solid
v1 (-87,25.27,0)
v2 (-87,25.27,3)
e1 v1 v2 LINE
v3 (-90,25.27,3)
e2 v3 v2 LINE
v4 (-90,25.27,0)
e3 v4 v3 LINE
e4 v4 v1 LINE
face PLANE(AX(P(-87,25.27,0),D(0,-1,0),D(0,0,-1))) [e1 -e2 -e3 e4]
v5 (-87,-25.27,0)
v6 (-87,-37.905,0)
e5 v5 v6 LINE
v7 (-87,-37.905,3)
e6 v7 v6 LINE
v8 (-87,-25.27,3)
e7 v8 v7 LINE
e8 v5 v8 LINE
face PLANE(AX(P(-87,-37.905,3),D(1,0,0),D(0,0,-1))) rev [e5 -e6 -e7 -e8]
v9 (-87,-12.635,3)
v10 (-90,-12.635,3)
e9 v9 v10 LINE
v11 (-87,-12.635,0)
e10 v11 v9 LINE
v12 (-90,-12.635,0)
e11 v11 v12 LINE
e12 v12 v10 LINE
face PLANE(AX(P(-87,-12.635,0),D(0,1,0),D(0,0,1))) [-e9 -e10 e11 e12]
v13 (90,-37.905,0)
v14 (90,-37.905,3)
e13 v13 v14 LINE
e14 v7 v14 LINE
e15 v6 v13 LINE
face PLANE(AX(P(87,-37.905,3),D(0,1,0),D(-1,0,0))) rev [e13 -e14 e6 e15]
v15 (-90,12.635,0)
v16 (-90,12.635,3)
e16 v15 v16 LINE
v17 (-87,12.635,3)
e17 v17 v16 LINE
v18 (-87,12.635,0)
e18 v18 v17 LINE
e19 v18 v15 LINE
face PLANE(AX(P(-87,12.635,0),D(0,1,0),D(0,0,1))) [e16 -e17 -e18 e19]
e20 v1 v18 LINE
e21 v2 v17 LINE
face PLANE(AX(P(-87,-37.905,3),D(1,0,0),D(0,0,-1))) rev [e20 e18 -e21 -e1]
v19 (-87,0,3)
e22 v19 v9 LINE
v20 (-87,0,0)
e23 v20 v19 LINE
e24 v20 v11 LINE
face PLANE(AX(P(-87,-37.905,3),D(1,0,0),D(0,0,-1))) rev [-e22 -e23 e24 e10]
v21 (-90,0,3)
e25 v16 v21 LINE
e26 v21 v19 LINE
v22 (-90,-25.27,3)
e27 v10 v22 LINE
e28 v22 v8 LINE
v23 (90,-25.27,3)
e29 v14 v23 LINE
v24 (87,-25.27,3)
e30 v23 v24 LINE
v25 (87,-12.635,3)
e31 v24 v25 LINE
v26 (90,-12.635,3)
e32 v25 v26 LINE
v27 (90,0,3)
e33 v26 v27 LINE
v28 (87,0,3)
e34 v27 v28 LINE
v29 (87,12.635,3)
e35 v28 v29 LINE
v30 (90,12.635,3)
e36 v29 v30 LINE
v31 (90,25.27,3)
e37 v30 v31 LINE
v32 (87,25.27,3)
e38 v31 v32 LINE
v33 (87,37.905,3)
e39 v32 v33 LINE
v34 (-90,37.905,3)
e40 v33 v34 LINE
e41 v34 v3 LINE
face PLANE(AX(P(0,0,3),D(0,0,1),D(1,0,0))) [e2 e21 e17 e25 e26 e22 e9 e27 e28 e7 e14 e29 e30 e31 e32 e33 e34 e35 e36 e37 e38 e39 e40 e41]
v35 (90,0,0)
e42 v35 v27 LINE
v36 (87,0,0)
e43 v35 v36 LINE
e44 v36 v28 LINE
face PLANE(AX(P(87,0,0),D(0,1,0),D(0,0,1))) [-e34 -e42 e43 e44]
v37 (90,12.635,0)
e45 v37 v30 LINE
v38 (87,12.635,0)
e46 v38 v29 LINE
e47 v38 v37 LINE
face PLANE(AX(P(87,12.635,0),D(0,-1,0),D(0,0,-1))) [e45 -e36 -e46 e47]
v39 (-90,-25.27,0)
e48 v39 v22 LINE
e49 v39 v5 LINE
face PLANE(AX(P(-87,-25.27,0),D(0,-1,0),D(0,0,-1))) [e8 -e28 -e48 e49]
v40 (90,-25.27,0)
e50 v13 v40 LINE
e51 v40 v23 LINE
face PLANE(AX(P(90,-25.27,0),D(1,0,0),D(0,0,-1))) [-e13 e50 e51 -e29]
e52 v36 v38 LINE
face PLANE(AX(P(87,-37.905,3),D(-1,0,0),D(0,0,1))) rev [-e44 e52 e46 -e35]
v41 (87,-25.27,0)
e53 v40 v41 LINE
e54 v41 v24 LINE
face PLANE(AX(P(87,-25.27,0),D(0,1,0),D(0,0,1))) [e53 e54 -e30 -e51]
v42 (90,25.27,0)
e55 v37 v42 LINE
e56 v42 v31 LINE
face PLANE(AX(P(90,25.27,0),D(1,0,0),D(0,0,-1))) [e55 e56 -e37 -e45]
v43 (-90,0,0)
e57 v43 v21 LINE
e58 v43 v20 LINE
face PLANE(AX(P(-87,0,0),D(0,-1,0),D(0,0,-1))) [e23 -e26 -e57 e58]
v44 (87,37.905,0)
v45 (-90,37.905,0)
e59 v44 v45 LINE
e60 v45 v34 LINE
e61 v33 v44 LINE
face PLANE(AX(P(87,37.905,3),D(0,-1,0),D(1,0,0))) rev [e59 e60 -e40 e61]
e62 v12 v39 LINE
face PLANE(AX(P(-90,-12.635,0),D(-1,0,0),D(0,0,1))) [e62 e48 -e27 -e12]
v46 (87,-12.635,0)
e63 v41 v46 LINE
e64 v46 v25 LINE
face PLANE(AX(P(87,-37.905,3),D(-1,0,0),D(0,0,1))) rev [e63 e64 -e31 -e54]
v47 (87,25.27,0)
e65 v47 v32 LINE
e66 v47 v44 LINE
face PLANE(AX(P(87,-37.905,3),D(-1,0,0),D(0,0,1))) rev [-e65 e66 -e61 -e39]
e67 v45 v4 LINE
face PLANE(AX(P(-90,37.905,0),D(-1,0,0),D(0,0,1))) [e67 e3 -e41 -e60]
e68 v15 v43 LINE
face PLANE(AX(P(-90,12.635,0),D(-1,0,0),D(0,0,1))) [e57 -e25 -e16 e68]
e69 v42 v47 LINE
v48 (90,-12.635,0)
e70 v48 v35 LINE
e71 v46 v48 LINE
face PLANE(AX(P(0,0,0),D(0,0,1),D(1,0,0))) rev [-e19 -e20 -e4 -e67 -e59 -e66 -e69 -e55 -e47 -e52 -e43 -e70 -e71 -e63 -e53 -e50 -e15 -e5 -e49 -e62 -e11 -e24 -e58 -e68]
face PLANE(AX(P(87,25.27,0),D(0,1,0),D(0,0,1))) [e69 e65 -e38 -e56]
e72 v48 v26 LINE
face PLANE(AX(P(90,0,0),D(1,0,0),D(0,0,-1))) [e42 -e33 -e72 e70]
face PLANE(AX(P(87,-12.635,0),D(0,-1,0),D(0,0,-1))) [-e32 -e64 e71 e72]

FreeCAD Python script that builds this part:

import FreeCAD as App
import Part
import Sketcher

V = App.Vector
Q = App.Units.Quantity

doc = App.newDocument("Part")
body = doc.addObject("PartDesign::Body", "Body")

sketch1 = body.newObject("Sketcher::SketchObject", "Sketch")
sketch1.AttachmentSupport = (doc.getObject("XY_Plane"), [""])
sketch1.MapMode = "FlatFace"
sketch1.addGeometry([
    Part.LineSegment(V(-87, 38, 0), V(-87, -38, 0)),
    Part.LineSegment(V(-87, -38, 0), V(87, -38, 0)),
    Part.LineSegment(V(87, -38, 0), V(87, 38, 0)),
    Part.LineSegment(V(87, 38, 0), V(-87, 38, 0)),
], False)
sketch1.addConstraint([
    Sketcher.Constraint("Coincident", 0, 2, 1, 1),
    Sketcher.Constraint("Coincident", 1, 2, 2, 1),
    Sketcher.Constraint("Coincident", 2, 2, 3, 1),
    Sketcher.Constraint("Coincident", 3, 2, 0, 1),
    Sketcher.Constraint("Vertical", 0),
    Sketcher.Constraint("Horizontal", 1),
    Sketcher.Constraint("Vertical", 2),
    Sketcher.Constraint("Horizontal", 3),
    Sketcher.Constraint("Symmetric", 0, 2, 2, 2, -1, 1),
    Sketcher.Constraint("DistanceX", 1, 1, 1, 2, Q("174 mm")),
    Sketcher.Constraint("DistanceY", 0, 2, 0, 1, Q("75.81 mm")),
])
pad1 = body.newObject("PartDesign::Pad", "Pad")
pad1.Profile = sketch1
pad1.Length = 3

sketch2 = body.newObject("Sketcher::SketchObject", "Sketch001")
sketch2.AttachmentSupport = (doc.getObject("XY_Plane"), [""])
sketch2.MapMode = "FlatFace"
sketch2.AttachmentOffset = App.Placement(V(0, 0, 3), App.Rotation())
sketch2.addGeometry([
    Part.LineSegment(V(-90, 12.6, 0), V(-90, 0, 0)),
    Part.LineSegment(V(-90, 0, 0), V(-87, 0, 0)),
    Part.LineSegment(V(-87, 0, 0), V(-87, 12.6, 0)),
    Part.LineSegment(V(-87, 12.6, 0), V(-90, 12.6, 0)),
    Part.LineSegment(V(-90, 37.9, 0), V(-90, 25.3, 0)),
    Part.LineSegment(V(-90, 25.3, 0), V(-87, 25.3, 0)),
    Part.LineSegment(V(-87, 25.3, 0), V(-87, 37.9, 0)),
    Part.LineSegment(V(-87, 37.9, 0), V(-90, 37.9, 0)),
    Part.LineSegment(V(-90, -12.6, 0), V(-90, -25.3, 0)),
    Part.LineSegment(V(-90, -25.3, 0), V(-87, -25.3, 0)),
    Part.LineSegment(V(-87, -25.3, 0), V(-87, -12.6, 0)),
    Part.LineSegment(V(-87, -12.6, 0), V(-90, -12.6, 0)),
], False)
sketch2.addConstraint([
    Sketcher.Constraint("Coincident", 0, 2, 1, 1),
    Sketcher.Constraint("Coincident", 1, 2, 2, 1),
    Sketcher.Constraint("Coincident", 2, 2, 3, 1),
    Sketcher.Constraint("Coincident", 3, 2, 0, 1),
    Sketcher.Constraint("Coincident", 4, 2, 5, 1),
    Sketcher.Constraint("Coincident", 5, 2, 6, 1),
    Sketcher.Constraint("Coincident", 6, 2, 7, 1),
    Sketcher.Constraint("Coincident", 7, 2, 4, 1),
    Sketcher.Constraint("Coincident", 8, 2, 9, 1),
    Sketcher.Constraint("Coincident", 9, 2, 10, 1),
    Sketcher.Constraint("Coincident", 10, 2, 11, 1),
    Sketcher.Constraint("Coincident", 11, 2, 8, 1),
    Sketcher.Constraint("Vertical", 0),
    Sketcher.Constraint("Horizontal", 1),
    Sketcher.Constraint("Vertical", 2),
    Sketcher.Constraint("Horizontal", 3),
    Sketcher.Constraint("Vertical", 4),
    Sketcher.Constraint("Horizontal", 5),
    Sketcher.Constraint("Vertical", 6),
    Sketcher.Constraint("Horizontal", 7),
    Sketcher.Constraint("Vertical", 8),
    Sketcher.Constraint("Horizontal", 9),
    Sketcher.Constraint("Vertical", 10),
    Sketcher.Constraint("Horizontal", 11),
    Sketcher.Constraint("Symmetric", 4, 2, 8, 2, -1),
    Sketcher.Constraint("Symmetric", 2, 2, 10, 2, -1),
    Sketcher.Constraint("PointOnObject", 0, 2, -1),
    Sketcher.Constraint("Vertical", 3, 2, 4, 2),
    Sketcher.Constraint("Vertical", 2, 2, 5, 2),
    Sketcher.Constraint("Equal", 2, 4),
    Sketcher.Constraint("Equal", 6, 8),
    Sketcher.Constraint("DistanceX", 1, 1, 1, 2, Q("3 mm")),
    Sketcher.Constraint("DistanceX", 0, 2, -1, 1, Q("90 mm")),
    Sketcher.Constraint("DistanceY", 0, 2, 0, 1, Q("12.635 mm")),
])
pad2 = body.newObject("PartDesign::Pad", "Pad001")
pad2.Profile = sketch2
pad2.Length = 3
pad2.Reversed = True

sketch3 = body.newObject("Sketcher::SketchObject", "Sketch002")
sketch3.AttachmentSupport = (doc.getObject("XY_Plane"), [""])
sketch3.MapMode = "FlatFace"
sketch3.AttachmentOffset = App.Placement(V(0, 0, 3), App.Rotation())
sketch3.addGeometry([
    Part.LineSegment(V(87, 25.3, 0), V(87, 12.6, 0)),
    Part.LineSegment(V(87, 12.6, 0), V(90, 12.6, 0)),
    Part.LineSegment(V(90, 12.6, 0), V(90, 25.3, 0)),
    Part.LineSegment(V(90, 25.3, 0), V(87, 25.3, 0)),
    Part.LineSegment(V(87, 0, 0), V(87, -12.6, 0)),
    Part.LineSegment(V(87, -12.6, 0), V(90, -12.6, 0)),
    Part.LineSegment(V(90, -12.6, 0), V(90, 0, 0)),
    Part.LineSegment(V(90, 0, 0), V(87, 0, 0)),
    Part.LineSegment(V(87, -25.3, 0), V(87, -37.9, 0)),
    Part.LineSegment(V(87, -37.9, 0), V(90, -37.9, 0)),
    Part.LineSegment(V(90, -37.9, 0), V(90, -25.3, 0)),
    Part.LineSegment(V(90, -25.3, 0), V(87, -25.3, 0)),
], False)
sketch3.addConstraint([
    Sketcher.Constraint("Coincident", 0, 2, 1, 1),
    Sketcher.Constraint("Coincident", 1, 2, 2, 1),
    Sketcher.Constraint("Coincident", 2, 2, 3, 1),
    Sketcher.Constraint("Coincident", 3, 2, 0, 1),
    Sketcher.Constraint("Coincident", 4, 2, 5, 1),
    Sketcher.Constraint("Coincident", 5, 2, 6, 1),
    Sketcher.Constraint("Coincident", 6, 2, 7, 1),
    Sketcher.Constraint("Coincident", 7, 2, 4, 1),
    Sketcher.Constraint("Coincident", 8, 2, 9, 1),
    Sketcher.Constraint("Coincident", 9, 2, 10, 1),
    Sketcher.Constraint("Coincident", 10, 2, 11, 1),
    Sketcher.Constraint("Coincident", 11, 2, 8, 1),
    Sketcher.Constraint("Vertical", 0),
    Sketcher.Constraint("Horizontal", 1),
    Sketcher.Constraint("Vertical", 2),
    Sketcher.Constraint("Horizontal", 3),
    Sketcher.Constraint("Vertical", 4),
    Sketcher.Constraint("Horizontal", 5),
    Sketcher.Constraint("Vertical", 6),
    Sketcher.Constraint("Horizontal", 7),
    Sketcher.Constraint("Vertical", 8),
    Sketcher.Constraint("Horizontal", 9),
    Sketcher.Constraint("Vertical", 10),
    Sketcher.Constraint("Horizontal", 11),
    Sketcher.Constraint("Symmetric", 0, 2, 4, 2, -1),
    Sketcher.Constraint("Symmetric", 2, 2, 10, 2, -1),
    Sketcher.Constraint("PointOnObject", 6, 2, -1),
    Sketcher.Constraint("Vertical", 2, 2, 5, 2),
    Sketcher.Constraint("Vertical", 7, 2, 8, 2),
    Sketcher.Constraint("Equal", 2, 4),
    Sketcher.Constraint("Equal", 6, 8),
    Sketcher.Constraint("DistanceX", 1, 1, 1, 2, Q("3 mm")),
    Sketcher.Constraint("DistanceX", -1, 1, 0, 2, Q("87 mm")),
    Sketcher.Constraint("DistanceY", 0, 2, 0, 1, Q("12.635 mm")),
])
pad3 = body.newObject("PartDesign::Pad", "Pad002")
pad3.Profile = sketch3
pad3.Length = 3
pad3.Reversed = True

doc.recompute()
